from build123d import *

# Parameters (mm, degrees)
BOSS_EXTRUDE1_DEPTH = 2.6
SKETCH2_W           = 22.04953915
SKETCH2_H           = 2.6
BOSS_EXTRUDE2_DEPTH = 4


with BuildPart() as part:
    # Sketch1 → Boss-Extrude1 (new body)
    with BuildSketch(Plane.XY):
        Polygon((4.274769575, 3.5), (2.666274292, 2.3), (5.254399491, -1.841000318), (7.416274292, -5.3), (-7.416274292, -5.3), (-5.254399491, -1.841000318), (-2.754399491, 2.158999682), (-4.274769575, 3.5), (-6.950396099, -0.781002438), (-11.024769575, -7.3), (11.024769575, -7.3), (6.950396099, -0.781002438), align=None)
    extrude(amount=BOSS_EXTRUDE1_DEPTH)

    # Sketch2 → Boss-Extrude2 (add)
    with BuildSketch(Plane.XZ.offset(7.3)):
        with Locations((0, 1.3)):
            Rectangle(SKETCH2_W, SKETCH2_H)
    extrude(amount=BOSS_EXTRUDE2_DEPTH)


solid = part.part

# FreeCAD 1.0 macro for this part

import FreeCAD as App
import Part
import Sketcher

doc = App.newDocument("Part")
body = doc.addObject("PartDesign::Body", "Body")

sketch1 = body.newObject("Sketcher::SketchObject", "Sketch")
sketch1.AttachmentSupport = (doc.getObject("XY_Plane"), [""])
sketch1.MapMode = "FlatFace"
sketch1.addGeometry(Part.LineSegment(App.Vector(4.27477, 3.5, 0), App.Vector(2.666274, 2.3, 0)), False)
sketch1.addGeometry(Part.LineSegment(App.Vector(2.666274, 2.3, 0), App.Vector(5.254399, -1.841, 0)), False)
sketch1.addGeometry(Part.LineSegment(App.Vector(5.254399, -1.841, 0), App.Vector(7.416274, -5.3, 0)), False)
sketch1.addGeometry(Part.LineSegment(App.Vector(7.416274, -5.3, 0), App.Vector(-7.416274, -5.3, 0)), False)
sketch1.addGeometry(Part.LineSegment(App.Vector(-7.416274, -5.3, 0), App.Vector(-5.254399, -1.841, 0)), False)
sketch1.addGeometry(Part.LineSegment(App.Vector(-5.254399, -1.841, 0), App.Vector(-2.754399, 2.159, 0)), False)
sketch1.addGeometry(Part.LineSegment(App.Vector(-2.754399, 2.159, 0), App.Vector(-4.27477, 3.5, 0)), False)
sketch1.addGeometry(Part.LineSegment(App.Vector(-4.27477, 3.5, 0), App.Vector(-6.950396, -0.781002, 0)), False)
sketch1.addGeometry(Part.LineSegment(App.Vector(-6.950396, -0.781002, 0), App.Vector(-11.02477, -7.3, 0)), False)
sketch1.addGeometry(Part.LineSegment(App.Vector(-11.02477, -7.3, 0), App.Vector(11.02477, -7.3, 0)), False)
sketch1.addGeometry(Part.LineSegment(App.Vector(11.02477, -7.3, 0), App.Vector(6.950396, -0.781002, 0)), False)
sketch1.addGeometry(Part.LineSegment(App.Vector(6.950396, -0.781002, 0), App.Vector(4.27477, 3.5, 0)), False)
sketch1.addConstraint(Sketcher.Constraint("Coincident", 0, 2, 1, 1))
sketch1.addConstraint(Sketcher.Constraint("Coincident", 1, 2, 2, 1))
sketch1.addConstraint(Sketcher.Constraint("Coincident", 2, 2, 3, 1))
sketch1.addConstraint(Sketcher.Constraint("Coincident", 3, 2, 4, 1))
sketch1.addConstraint(Sketcher.Constraint("Coincident", 4, 2, 5, 1))
sketch1.addConstraint(Sketcher.Constraint("Coincident", 5, 2, 6, 1))
sketch1.addConstraint(Sketcher.Constraint("Coincident", 6, 2, 7, 1))
sketch1.addConstraint(Sketcher.Constraint("Coincident", 7, 2, 8, 1))
sketch1.addConstraint(Sketcher.Constraint("Coincident", 8, 2, 9, 1))
sketch1.addConstraint(Sketcher.Constraint("Coincident", 9, 2, 10, 1))
sketch1.addConstraint(Sketcher.Constraint("Coincident", 10, 2, 11, 1))
sketch1.addConstraint(Sketcher.Constraint("Coincident", 11, 2, 0, 1))
sketch1.addConstraint(Sketcher.Constraint("Horizontal", 3))
sketch1.addConstraint(Sketcher.Constraint("Horizontal", 9))
sketch1.addConstraint(Sketcher.Constraint("Symmetric", 1, 2, 4, 2, -2))
sketch1.addConstraint(Sketcher.Constraint("Symmetric", 7, 2, 10, 2, -2))
sketch1.addConstraint(Sketcher.Constraint("Symmetric", 6, 2, 11, 2, -2))
sketch1.addConstraint(Sketcher.Constraint("Parallel", 1, 2))
sketch1.addConstraint(Sketcher.Constraint("Parallel", 4, 5))
sketch1.addConstraint(Sketcher.Constraint("Parallel", 5, 7))
sketch1.addConstraint(Sketcher.Constraint("Parallel", 7, 8))
sketch1.addConstraint(Sketcher.Constraint("Parallel", 2, 10))
sketch1.addConstraint(Sketcher.Constraint("Parallel", 10, 11))
sketch1.addConstraint(Sketcher.Constraint("DistanceY", 4, 2, 5, 2, 4.0))
sketch1.addConstraint(Sketcher.Constraint("DistanceY", 8, 2, 3, 2, 2.0))
sketch1.addConstraint(Sketcher.Constraint("DistanceY", -1, 1, 0, 2, 2.3))
sketch1.addConstraint(Sketcher.Constraint("DistanceY", 2, 2, -1, 1, 5.3))
sketch1.addConstraint(Sketcher.Constraint("DistanceY", -1, 1, 6, 2, 3.5))
sketch1.addConstraint(Sketcher.Constraint("DistanceX", 4, 2, 5, 2, 2.5))
sketch1.addConstraint(Sketcher.Constraint("DistanceY", 1, 2, -1, 1, 1.841))
sketch1.addConstraint(Sketcher.Constraint("DistanceX", 3, 2, 3, 1, 14.832549))
sketch1.addConstraint(Sketcher.Constraint("DistanceX", 9, 1, 9, 2, 22.049539))
sketch1.addConstraint(Sketcher.Constraint("DistanceX", 3, 2, 7, 2, 0.465878))
pad1 = body.newObject("PartDesign::Pad", "Pad")
pad1.Profile = sketch1
pad1.Length = 2.6

sketch2 = body.newObject("Sketcher::SketchObject", "Sketch001")
sketch2.AttachmentSupport = (doc.getObject("XZ_Plane"), [""])
sketch2.MapMode = "FlatFace"
sketch2.AttachmentOffset = App.Placement(App.Vector(0, 0, 7.3), App.Rotation())
sketch2.addGeometry(Part.LineSegment(App.Vector(-11.02477, 2.6, 0), App.Vector(-11.02477, 0, 0)), False)
sketch2.addGeometry(Part.LineSegment(App.Vector(-11.02477, 0, 0), App.Vector(11.02477, 0, 0)), False)
sketch2.addGeometry(Part.LineSegment(App.Vector(11.02477, 0, 0), App.Vector(11.02477, 2.6, 0)), False)
sketch2.addGeometry(Part.LineSegment(App.Vector(11.02477, 2.6, 0), App.Vector(-11.02477, 2.6, 0)), False)
sketch2.addConstraint(Sketcher.Constraint("Coincident", 0, 2, 1, 1))
sketch2.addConstraint(Sketcher.Constraint("Coincident", 1, 2, 2, 1))
sketch2.addConstraint(Sketcher.Constraint("Coincident", 2, 2, 3, 1))
sketch2.addConstraint(Sketcher.Constraint("Coincident", 3, 2, 0, 1))
sketch2.addConstraint(Sketcher.Constraint("Vertical", 0))
sketch2.addConstraint(Sketcher.Constraint("Horizontal", 1))
sketch2.addConstraint(Sketcher.Constraint("Vertical", 2))
sketch2.addConstraint(Sketcher.Constraint("Horizontal", 3))
sketch2.addConstraint(Sketcher.Constraint("Symmetric", 0, 2, 1, 2, -1, 1))
sketch2.addConstraint(Sketcher.Constraint("DistanceY", 0, 2, 0, 1, 2.6))
sketch2.addConstraint(Sketcher.Constraint("DistanceX", 1, 1, 1, 2, 22.049539))
pad2 = body.newObject("PartDesign::Pad", "Pad001")
pad2.Profile = sketch2
pad2.Length = 4

doc.recompute()
